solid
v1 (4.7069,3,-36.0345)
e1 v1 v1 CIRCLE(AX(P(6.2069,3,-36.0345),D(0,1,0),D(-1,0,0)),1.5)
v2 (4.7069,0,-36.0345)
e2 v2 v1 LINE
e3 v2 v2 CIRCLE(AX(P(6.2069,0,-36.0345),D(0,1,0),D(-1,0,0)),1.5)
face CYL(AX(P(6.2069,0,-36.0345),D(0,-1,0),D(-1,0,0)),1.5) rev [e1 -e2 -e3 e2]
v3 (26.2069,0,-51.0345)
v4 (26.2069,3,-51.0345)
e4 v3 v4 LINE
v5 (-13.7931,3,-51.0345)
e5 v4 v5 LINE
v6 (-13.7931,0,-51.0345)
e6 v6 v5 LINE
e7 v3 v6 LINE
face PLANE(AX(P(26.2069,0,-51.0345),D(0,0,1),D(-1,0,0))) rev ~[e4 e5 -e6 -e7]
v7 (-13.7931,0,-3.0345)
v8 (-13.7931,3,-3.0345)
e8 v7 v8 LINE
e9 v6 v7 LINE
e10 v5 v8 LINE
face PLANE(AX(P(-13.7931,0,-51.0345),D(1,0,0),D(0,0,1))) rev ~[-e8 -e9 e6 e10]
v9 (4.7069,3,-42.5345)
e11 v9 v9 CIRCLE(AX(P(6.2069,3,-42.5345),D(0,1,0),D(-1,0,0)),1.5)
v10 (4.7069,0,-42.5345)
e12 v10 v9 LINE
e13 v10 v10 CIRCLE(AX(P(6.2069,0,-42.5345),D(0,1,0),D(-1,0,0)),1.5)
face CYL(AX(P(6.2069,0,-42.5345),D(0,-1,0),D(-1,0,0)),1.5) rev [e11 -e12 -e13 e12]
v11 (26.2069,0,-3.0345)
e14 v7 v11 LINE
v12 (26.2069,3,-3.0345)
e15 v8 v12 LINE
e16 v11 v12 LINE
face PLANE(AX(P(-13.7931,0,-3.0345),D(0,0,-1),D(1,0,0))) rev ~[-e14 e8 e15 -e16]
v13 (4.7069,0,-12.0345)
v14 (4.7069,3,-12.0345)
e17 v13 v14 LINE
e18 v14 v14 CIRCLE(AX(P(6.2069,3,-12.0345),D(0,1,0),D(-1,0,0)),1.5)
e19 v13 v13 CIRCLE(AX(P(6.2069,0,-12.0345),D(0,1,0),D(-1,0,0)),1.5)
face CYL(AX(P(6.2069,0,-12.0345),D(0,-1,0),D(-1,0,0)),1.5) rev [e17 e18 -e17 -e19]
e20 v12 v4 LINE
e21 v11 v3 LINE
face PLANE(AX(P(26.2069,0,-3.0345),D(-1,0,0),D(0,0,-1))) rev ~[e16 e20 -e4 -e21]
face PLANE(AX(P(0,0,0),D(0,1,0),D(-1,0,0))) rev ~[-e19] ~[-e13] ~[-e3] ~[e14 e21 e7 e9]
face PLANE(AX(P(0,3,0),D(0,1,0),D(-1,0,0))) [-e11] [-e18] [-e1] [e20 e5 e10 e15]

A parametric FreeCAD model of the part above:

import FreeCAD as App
import Part
import Sketcher
Q = App.Units.Quantity

doc = App.newDocument("Part")
body = doc.addObject("PartDesign::Body", "Body")

# Sketch on XZ plane
sketch1 = body.newObject("Sketcher::SketchObject", "Sketch")
sketch1.AttachmentSupport = (doc.getObject("XZ_Plane"), [""])
sketch1.MapMode = "FlatFace"
sketch1.addGeometry(Part.LineSegment(App.Vector(-13.8, -51, 0), App.Vector(-13.8, -3, 0)), False)
sketch1.addGeometry(Part.LineSegment(App.Vector(-13.8, -3, 0), App.Vector(26.2, -3, 0)), False)
sketch1.addGeometry(Part.LineSegment(App.Vector(26.2, -3, 0), App.Vector(26.2, -51, 0)), False)
sketch1.addGeometry(Part.LineSegment(App.Vector(26.2, -51, 0), App.Vector(-13.8, -51, 0)), False)
sketch1.addGeometry(Part.Circle(App.Vector(6.2, -42.5, 0), App.Vector(0, 0, 1), 1.5), False)
sketch1.addGeometry(Part.Circle(App.Vector(6.2, -36, 0), App.Vector(0, 0, 1), 1.5), False)
sketch1.addGeometry(Part.Circle(App.Vector(6.2, -12, 0), App.Vector(0, 0, 1), 1.5), False)
sketch1.addConstraint(Sketcher.Constraint("Coincident", 0, 2, 1, 1))
sketch1.addConstraint(Sketcher.Constraint("Coincident", 1, 2, 2, 1))
sketch1.addConstraint(Sketcher.Constraint("Coincident", 2, 2, 3, 1))
sketch1.addConstraint(Sketcher.Constraint("Coincident", 3, 2, 0, 1))
sketch1.addConstraint(Sketcher.Constraint("Vertical", 0))
sketch1.addConstraint(Sketcher.Constraint("Horizontal", 1))
sketch1.addConstraint(Sketcher.Constraint("Vertical", 2))
sketch1.addConstraint(Sketcher.Constraint("Horizontal", 3))
sketch1.addConstraint(Sketcher.Constraint("Equal", 4, 5))
sketch1.addConstraint(Sketcher.Constraint("Equal", 5, 6))
sketch1.addConstraint(Sketcher.Constraint("Vertical", 4, 3, 5, 3))
sketch1.addConstraint(Sketcher.Constraint("Vertical", 5, 3, 6, 3))
sketch1.addConstraint(Sketcher.Constraint("Diameter", 4, Q("3 mm")))
sketch1.addConstraint(Sketcher.Constraint("DistanceX", 1, 1, 1, 2, Q("40 mm")))
sketch1.addConstraint(Sketcher.Constraint("DistanceY", 0, 1, 0, 2, Q("48 mm")))
sketch1.addConstraint(Sketcher.Constraint("DistanceX", 0, 2, 6, 3, Q("20 mm")))
sketch1.addConstraint(Sketcher.Constraint("DistanceY", 6, 3, 0, 2, Q("9 mm")))
sketch1.addConstraint(Sketcher.Constraint("DistanceY", 2, 2, 5, 3, Q("15 mm")))
sketch1.addConstraint(Sketcher.Constraint("DistanceY", 2, 2, 4, 3, Q("8.5 mm")))
sketch1.addConstraint(Sketcher.Constraint("DistanceX", -1, 1, 4, 3, Q("6.207 mm")))
sketch1.addConstraint(Sketcher.Constraint("DistanceY", 4, 3, -1, 1, Q("42.5345 mm")))
pad1 = body.newObject("PartDesign::Pad", "Pad")
pad1.Profile = sketch1
pad1.Length = 3
pad1.Reversed = True

doc.recompute()
